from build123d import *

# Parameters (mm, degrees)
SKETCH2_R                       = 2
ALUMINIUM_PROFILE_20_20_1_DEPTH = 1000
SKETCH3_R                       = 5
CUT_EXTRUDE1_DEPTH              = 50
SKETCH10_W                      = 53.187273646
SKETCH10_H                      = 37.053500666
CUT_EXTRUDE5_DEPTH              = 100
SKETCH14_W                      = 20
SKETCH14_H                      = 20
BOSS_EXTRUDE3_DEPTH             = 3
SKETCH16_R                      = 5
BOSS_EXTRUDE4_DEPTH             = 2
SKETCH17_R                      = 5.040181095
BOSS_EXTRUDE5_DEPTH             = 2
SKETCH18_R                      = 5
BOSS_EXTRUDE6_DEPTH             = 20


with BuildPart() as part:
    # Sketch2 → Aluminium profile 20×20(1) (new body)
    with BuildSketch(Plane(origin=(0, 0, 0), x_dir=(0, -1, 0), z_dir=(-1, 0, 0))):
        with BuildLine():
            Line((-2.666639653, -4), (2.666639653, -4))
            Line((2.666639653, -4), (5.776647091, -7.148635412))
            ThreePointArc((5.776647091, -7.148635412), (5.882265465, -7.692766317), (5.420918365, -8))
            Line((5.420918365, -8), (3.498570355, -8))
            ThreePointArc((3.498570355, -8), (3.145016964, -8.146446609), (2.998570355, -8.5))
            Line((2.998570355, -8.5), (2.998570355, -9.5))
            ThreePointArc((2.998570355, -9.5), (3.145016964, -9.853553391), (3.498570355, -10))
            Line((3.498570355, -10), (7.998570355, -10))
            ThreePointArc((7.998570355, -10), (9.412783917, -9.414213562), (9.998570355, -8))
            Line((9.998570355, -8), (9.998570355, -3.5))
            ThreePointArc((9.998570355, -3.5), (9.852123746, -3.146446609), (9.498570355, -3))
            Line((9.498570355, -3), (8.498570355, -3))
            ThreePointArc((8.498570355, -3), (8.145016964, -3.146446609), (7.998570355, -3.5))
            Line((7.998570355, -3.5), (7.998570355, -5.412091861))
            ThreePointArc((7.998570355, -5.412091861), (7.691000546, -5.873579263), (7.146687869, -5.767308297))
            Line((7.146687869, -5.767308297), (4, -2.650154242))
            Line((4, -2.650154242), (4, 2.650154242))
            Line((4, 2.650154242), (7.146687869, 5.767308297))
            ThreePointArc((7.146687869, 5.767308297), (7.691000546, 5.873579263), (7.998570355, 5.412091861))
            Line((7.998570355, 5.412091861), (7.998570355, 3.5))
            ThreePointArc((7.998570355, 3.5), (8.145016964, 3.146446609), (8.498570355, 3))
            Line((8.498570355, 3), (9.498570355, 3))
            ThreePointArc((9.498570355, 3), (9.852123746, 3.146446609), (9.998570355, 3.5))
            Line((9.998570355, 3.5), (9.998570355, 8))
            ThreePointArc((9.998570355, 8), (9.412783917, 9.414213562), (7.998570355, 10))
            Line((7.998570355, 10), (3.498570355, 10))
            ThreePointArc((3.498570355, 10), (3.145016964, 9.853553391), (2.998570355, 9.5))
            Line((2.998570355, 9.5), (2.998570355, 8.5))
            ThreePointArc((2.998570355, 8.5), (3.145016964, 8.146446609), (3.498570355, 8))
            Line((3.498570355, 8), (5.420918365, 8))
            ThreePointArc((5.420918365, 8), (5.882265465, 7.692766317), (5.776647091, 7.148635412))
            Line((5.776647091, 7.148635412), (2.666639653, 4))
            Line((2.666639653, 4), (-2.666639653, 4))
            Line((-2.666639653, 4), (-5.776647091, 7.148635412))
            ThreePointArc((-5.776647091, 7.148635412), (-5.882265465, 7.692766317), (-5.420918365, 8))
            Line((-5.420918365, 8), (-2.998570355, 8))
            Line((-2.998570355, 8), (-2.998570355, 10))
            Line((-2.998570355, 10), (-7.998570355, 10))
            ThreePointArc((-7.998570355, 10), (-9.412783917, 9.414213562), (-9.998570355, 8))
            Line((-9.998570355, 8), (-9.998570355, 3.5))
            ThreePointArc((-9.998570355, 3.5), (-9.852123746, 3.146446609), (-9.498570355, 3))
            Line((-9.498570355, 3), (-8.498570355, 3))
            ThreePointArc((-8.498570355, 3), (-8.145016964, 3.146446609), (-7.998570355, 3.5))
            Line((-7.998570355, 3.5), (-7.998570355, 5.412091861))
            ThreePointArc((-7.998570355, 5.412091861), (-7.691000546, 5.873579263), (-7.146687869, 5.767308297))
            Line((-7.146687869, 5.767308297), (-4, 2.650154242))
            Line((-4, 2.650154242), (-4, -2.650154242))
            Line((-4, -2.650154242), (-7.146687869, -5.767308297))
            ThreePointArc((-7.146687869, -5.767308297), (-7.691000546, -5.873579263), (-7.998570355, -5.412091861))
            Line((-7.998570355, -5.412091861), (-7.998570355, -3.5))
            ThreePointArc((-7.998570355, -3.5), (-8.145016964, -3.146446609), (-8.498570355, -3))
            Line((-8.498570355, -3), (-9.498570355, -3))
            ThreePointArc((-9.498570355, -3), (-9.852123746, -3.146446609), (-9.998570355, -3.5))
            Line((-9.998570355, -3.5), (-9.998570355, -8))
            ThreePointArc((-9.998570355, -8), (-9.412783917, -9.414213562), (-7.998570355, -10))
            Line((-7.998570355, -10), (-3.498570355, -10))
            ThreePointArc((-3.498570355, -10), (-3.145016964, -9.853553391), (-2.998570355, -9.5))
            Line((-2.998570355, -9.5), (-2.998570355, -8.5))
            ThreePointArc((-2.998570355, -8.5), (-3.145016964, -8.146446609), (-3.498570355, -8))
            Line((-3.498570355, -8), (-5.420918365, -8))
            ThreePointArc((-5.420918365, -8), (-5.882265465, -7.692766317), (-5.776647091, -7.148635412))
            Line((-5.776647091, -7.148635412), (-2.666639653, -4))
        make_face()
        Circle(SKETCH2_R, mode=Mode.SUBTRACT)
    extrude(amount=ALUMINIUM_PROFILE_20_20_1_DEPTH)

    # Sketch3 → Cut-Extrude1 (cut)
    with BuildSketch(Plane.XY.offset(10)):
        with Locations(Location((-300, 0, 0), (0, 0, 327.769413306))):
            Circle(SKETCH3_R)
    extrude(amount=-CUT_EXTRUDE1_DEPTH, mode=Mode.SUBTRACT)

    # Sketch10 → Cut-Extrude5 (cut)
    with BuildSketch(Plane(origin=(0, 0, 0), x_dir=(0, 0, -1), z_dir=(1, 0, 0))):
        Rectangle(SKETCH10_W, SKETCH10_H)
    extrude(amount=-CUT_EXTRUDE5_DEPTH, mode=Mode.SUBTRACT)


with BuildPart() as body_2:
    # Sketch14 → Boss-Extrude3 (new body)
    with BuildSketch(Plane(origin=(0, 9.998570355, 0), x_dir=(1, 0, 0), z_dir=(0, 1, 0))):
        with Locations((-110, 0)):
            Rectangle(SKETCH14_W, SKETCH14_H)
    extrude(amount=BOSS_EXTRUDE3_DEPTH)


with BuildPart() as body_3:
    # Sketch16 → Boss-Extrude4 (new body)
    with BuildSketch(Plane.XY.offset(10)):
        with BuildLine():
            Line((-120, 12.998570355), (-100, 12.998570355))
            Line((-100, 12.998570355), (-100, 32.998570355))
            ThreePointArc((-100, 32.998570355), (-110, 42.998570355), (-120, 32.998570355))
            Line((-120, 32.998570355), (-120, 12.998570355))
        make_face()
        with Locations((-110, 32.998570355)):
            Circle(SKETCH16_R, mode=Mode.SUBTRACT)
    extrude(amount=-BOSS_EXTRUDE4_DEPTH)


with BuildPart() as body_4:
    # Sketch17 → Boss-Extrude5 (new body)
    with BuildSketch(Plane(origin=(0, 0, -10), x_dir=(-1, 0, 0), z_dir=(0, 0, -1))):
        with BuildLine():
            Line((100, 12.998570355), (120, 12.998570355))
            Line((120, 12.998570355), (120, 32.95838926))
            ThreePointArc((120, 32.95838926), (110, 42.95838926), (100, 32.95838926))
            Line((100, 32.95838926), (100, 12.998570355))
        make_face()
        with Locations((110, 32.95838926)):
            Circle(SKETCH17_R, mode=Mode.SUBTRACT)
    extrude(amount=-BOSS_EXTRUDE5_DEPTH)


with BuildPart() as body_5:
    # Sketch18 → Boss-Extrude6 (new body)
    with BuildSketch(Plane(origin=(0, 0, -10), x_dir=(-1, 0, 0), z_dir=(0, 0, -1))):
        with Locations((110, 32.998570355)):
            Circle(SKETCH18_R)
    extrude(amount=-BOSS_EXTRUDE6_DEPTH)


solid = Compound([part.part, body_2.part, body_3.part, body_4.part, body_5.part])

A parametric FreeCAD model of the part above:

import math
import FreeCAD as App
import Part
import Sketcher

V = App.Vector


def add_polygon(sketch, points):
    """Adds a closed chain of lines whose ends are joined by coincident constraints."""
    first, n = sketch.GeometryCount, len(points)
    for a, b in zip(points, points[1:] + points[:1]):
        sketch.addGeometry(Part.LineSegment(App.Vector(*a, 0), App.Vector(*b, 0)), False)
    for i in range(n):
        sketch.addConstraint(Sketcher.Constraint("Coincident", first + i, 2, first + (i + 1) % n, 1))

doc = App.newDocument("Part")
body = doc.addObject("PartDesign::Body", "Body")

# Sketch on YZ plane
sketch1 = doc.addObject("Sketcher::SketchObject", "Sketch")
body.addObject(sketch1)
sketch1.AttachmentSupport = (doc.YZ_Plane, [""])
sketch1.MapMode = "FlatFace"
sketch1.addGeometry([
    Part.LineSegment(V(2.66664, -4, 0), V(-2.66664, -4, 0)),  # 0
    Part.LineSegment(V(-2.66664, -4, 0), V(-5.776647, -7.148635, 0)),  # 1
    Part.ArcOfCircle(Part.Circle(V(-5.420918, -7.5, 0), V(0, 0, 1), 0.5), math.radians(135.353622), math.radians(270)),  # 2
    Part.LineSegment(V(-5.420918, -8, 0), V(-3.49857, -8, 0)),  # 3
    Part.ArcOfCircle(Part.Circle(V(-3.49857, -8.5, 0), V(0, 0, 1), 0.5), math.radians(0), math.radians(90)),  # 4
    Part.LineSegment(V(-2.99857, -8.5, 0), V(-2.99857, -9.5, 0)),  # 5
    Part.ArcOfCircle(Part.Circle(V(-3.49857, -9.5, 0), V(0, 0, 1), 0.5), math.radians(-90), math.radians(0)),  # 6
    Part.LineSegment(V(-3.49857, -10, 0), V(-7.99857, -10, 0)),  # 7
    Part.ArcOfCircle(Part.Circle(V(-7.99857, -8, 0), V(0, 0, 1), 2), math.radians(-180), math.radians(-90)),  # 8
    Part.LineSegment(V(-9.99857, -8, 0), V(-9.99857, -3.5, 0)),  # 9
    Part.ArcOfCircle(Part.Circle(V(-9.49857, -3.5, 0), V(0, 0, 1), 0.5), math.radians(90), math.radians(180)),  # 10
    Part.LineSegment(V(-9.49857, -3, 0), V(-8.49857, -3, 0)),  # 11
    Part.ArcOfCircle(Part.Circle(V(-8.49857, -3.5, 0), V(0, 0, 1), 0.5), math.radians(0), math.radians(90)),  # 12
    Part.LineSegment(V(-7.99857, -3.5, 0), V(-7.99857, -5.412092, 0)),  # 13
    Part.ArcOfCircle(Part.Circle(V(-7.49857, -5.412092, 0), V(0, 0, 1), 0.5), math.radians(180), math.radians(314.729854)),  # 14
    Part.LineSegment(V(-7.146688, -5.767308, 0), V(-4, -2.650154, 0)),  # 15
    Part.LineSegment(V(-4, -2.650154, 0), V(-4, 2.650154, 0)),  # 16
    Part.LineSegment(V(-4, 2.650154, 0), V(-7.146688, 5.767308, 0)),  # 17
    Part.ArcOfCircle(Part.Circle(V(-7.49857, 5.412092, 0), V(0, 0, 1), 0.5), math.radians(45.270146), math.radians(180)),  # 18
    Part.LineSegment(V(-7.99857, 5.412092, 0), V(-7.99857, 3.5, 0)),  # 19
    Part.ArcOfCircle(Part.Circle(V(-8.49857, 3.5, 0), V(0, 0, 1), 0.5), math.radians(-90), math.radians(0)),  # 20
    Part.LineSegment(V(-8.49857, 3, 0), V(-9.49857, 3, 0)),  # 21
    Part.ArcOfCircle(Part.Circle(V(-9.49857, 3.5, 0), V(0, 0, 1), 0.5), math.radians(180), math.radians(270)),  # 22
    Part.LineSegment(V(-9.99857, 3.5, 0), V(-9.99857, 8, 0)),  # 23
    Part.ArcOfCircle(Part.Circle(V(-7.99857, 8, 0), V(0, 0, 1), 2), math.radians(90), math.radians(180)),  # 24
    Part.LineSegment(V(-7.99857, 10, 0), V(-3.49857, 10, 0)),  # 25
    Part.ArcOfCircle(Part.Circle(V(-3.49857, 9.5, 0), V(0, 0, 1), 0.5), math.radians(0), math.radians(90)),  # 26
    Part.LineSegment(V(-2.99857, 9.5, 0), V(-2.99857, 8.5, 0)),  # 27
    Part.ArcOfCircle(Part.Circle(V(-3.49857, 8.5, 0), V(0, 0, 1), 0.5), math.radians(-90), math.radians(0)),  # 28
    Part.LineSegment(V(-3.49857, 8, 0), V(-5.420918, 8, 0)),  # 29
    Part.ArcOfCircle(Part.Circle(V(-5.420918, 7.5, 0), V(0, 0, 1), 0.5), math.radians(90), math.radians(224.646378)),  # 30
    Part.LineSegment(V(-5.776647, 7.148635, 0), V(-2.66664, 4, 0)),  # 31
    Part.LineSegment(V(-2.66664, 4, 0), V(2.66664, 4, 0)),  # 32
    Part.LineSegment(V(2.66664, 4, 0), V(5.776647, 7.148635, 0)),  # 33
    Part.ArcOfCircle(Part.Circle(V(5.420918, 7.5, 0), V(0, 0, 1), 0.5), math.radians(-44.646378), math.radians(90)),  # 34
    Part.LineSegment(V(5.420918, 8, 0), V(2.99857, 8, 0)),  # 35
    Part.LineSegment(V(2.99857, 8, 0), V(2.99857, 10, 0)),  # 36
    Part.LineSegment(V(2.99857, 10, 0), V(7.99857, 10, 0)),  # 37
    Part.ArcOfCircle(Part.Circle(V(7.99857, 8, 0), V(0, 0, 1), 2), math.radians(0), math.radians(90)),  # 38
    Part.LineSegment(V(9.99857, 8, 0), V(9.99857, 3.5, 0)),  # 39
    Part.ArcOfCircle(Part.Circle(V(9.49857, 3.5, 0), V(0, 0, 1), 0.5), math.radians(-90), math.radians(0)),  # 40
    Part.LineSegment(V(9.49857, 3, 0), V(8.49857, 3, 0)),  # 41
    Part.ArcOfCircle(Part.Circle(V(8.49857, 3.5, 0), V(0, 0, 1), 0.5), math.radians(180), math.radians(270)),  # 42
    Part.LineSegment(V(7.99857, 3.5, 0), V(7.99857, 5.412092, 0)),  # 43
    Part.ArcOfCircle(Part.Circle(V(7.49857, 5.412092, 0), V(0, 0, 1), 0.5), math.radians(0), math.radians(134.729854)),  # 44
    Part.LineSegment(V(7.146688, 5.767308, 0), V(4, 2.650154, 0)),  # 45
    Part.LineSegment(V(4, 2.650154, 0), V(4, -2.650154, 0)),  # 46
    Part.LineSegment(V(4, -2.650154, 0), V(7.146688, -5.767308, 0)),  # 47
    Part.ArcOfCircle(Part.Circle(V(7.49857, -5.412092, 0), V(0, 0, 1), 0.5), math.radians(-134.729854), math.radians(0)),  # 48
    Part.LineSegment(V(7.99857, -5.412092, 0), V(7.99857, -3.5, 0)),  # 49
    Part.ArcOfCircle(Part.Circle(V(8.49857, -3.5, 0), V(0, 0, 1), 0.5), math.radians(90), math.radians(180)),  # 50
    Part.LineSegment(V(8.49857, -3, 0), V(9.49857, -3, 0)),  # 51
    Part.ArcOfCircle(Part.Circle(V(9.49857, -3.5, 0), V(0, 0, 1), 0.5), math.radians(0), math.radians(90)),  # 52
    Part.LineSegment(V(9.99857, -3.5, 0), V(9.99857, -8, 0)),  # 53
    Part.ArcOfCircle(Part.Circle(V(7.99857, -8, 0), V(0, 0, 1), 2), math.radians(-90), math.radians(0)),  # 54
    Part.LineSegment(V(7.99857, -10, 0), V(3.49857, -10, 0)),  # 55
    Part.ArcOfCircle(Part.Circle(V(3.49857, -9.5, 0), V(0, 0, 1), 0.5), math.radians(180), math.radians(270)),  # 56
    Part.LineSegment(V(2.99857, -9.5, 0), V(2.99857, -8.5, 0)),  # 57
    Part.ArcOfCircle(Part.Circle(V(3.49857, -8.5, 0), V(0, 0, 1), 0.5), math.radians(90), math.radians(180)),  # 58
    Part.LineSegment(V(3.49857, -8, 0), V(5.420918, -8, 0)),  # 59
    Part.ArcOfCircle(Part.Circle(V(5.420918, -7.5, 0), V(0, 0, 1), 0.5), math.radians(-90), math.radians(44.646378)),  # 60
    Part.LineSegment(V(5.776647, -7.148635, 0), V(2.66664, -4, 0)),  # 61
    Part.Circle(V(0, 0, 0), V(0, 0, 1), 2),  # 62
], False)
sketch1.addConstraint([
    Sketcher.Constraint("Coincident", 0, 2, 1, 1),
    Sketcher.Constraint("Tangent", 1, 2, 2, 1),
    Sketcher.Constraint("Tangent", 2, 2, 3, 1),
    Sketcher.Constraint("Tangent", 3, 2, 4, 2),
    Sketcher.Constraint("Tangent", 4, 1, 5, 1),
    Sketcher.Constraint("Tangent", 5, 2, 6, 2),
    Sketcher.Constraint("Tangent", 6, 1, 7, 1),
    Sketcher.Constraint("Tangent", 7, 2, 8, 2),
    Sketcher.Constraint("Tangent", 8, 1, 9, 1),
    Sketcher.Constraint("Tangent", 9, 2, 10, 2),
    Sketcher.Constraint("Tangent", 10, 1, 11, 1),
    Sketcher.Constraint("Tangent", 11, 2, 12, 2),
    Sketcher.Constraint("Tangent", 12, 1, 13, 1),
    Sketcher.Constraint("Tangent", 13, 2, 14, 1),
    Sketcher.Constraint("Tangent", 14, 2, 15, 1),
    Sketcher.Constraint("Coincident", 15, 2, 16, 1),
    Sketcher.Constraint("Coincident", 16, 2, 17, 1),
    Sketcher.Constraint("Tangent", 17, 2, 18, 1),
    Sketcher.Constraint("Tangent", 18, 2, 19, 1),
    Sketcher.Constraint("Tangent", 19, 2, 20, 2),
    Sketcher.Constraint("Tangent", 20, 1, 21, 1),
    Sketcher.Constraint("Tangent", 21, 2, 22, 2),
    Sketcher.Constraint("Tangent", 22, 1, 23, 1),
    Sketcher.Constraint("Tangent", 23, 2, 24, 2),
    Sketcher.Constraint("Tangent", 24, 1, 25, 1),
    Sketcher.Constraint("Tangent", 25, 2, 26, 2),
    Sketcher.Constraint("Tangent", 26, 1, 27, 1),
    Sketcher.Constraint("Tangent", 27, 2, 28, 2),
    Sketcher.Constraint("Tangent", 28, 1, 29, 1),
    Sketcher.Constraint("Tangent", 29, 2, 30, 1),
    Sketcher.Constraint("Tangent", 30, 2, 31, 1),
    Sketcher.Constraint("Coincident", 31, 2, 32, 1),
    Sketcher.Constraint("Coincident", 32, 2, 33, 1),
    Sketcher.Constraint("Tangent", 33, 2, 34, 1),
    Sketcher.Constraint("Tangent", 34, 2, 35, 1),
    Sketcher.Constraint("Coincident", 35, 2, 36, 1),
    Sketcher.Constraint("Coincident", 36, 2, 37, 1),
    Sketcher.Constraint("Tangent", 37, 2, 38, 2),
    Sketcher.Constraint("Tangent", 38, 1, 39, 1),
    Sketcher.Constraint("Tangent", 39, 2, 40, 2),
    Sketcher.Constraint("Tangent", 40, 1, 41, 1),
    Sketcher.Constraint("Tangent", 41, 2, 42, 2),
    Sketcher.Constraint("Tangent", 42, 1, 43, 1),
    Sketcher.Constraint("Tangent", 43, 2, 44, 1),
    Sketcher.Constraint("Tangent", 44, 2, 45, 1),
    Sketcher.Constraint("Coincident", 45, 2, 46, 1),
    Sketcher.Constraint("Coincident", 46, 2, 47, 1),
    Sketcher.Constraint("Tangent", 47, 2, 48, 1),
    Sketcher.Constraint("Tangent", 48, 2, 49, 1),
    Sketcher.Constraint("Tangent", 49, 2, 50, 2),
    Sketcher.Constraint("Tangent", 50, 1, 51, 1),
    Sketcher.Constraint("Tangent", 51, 2, 52, 2),
    Sketcher.Constraint("Tangent", 52, 1, 53, 1),
    Sketcher.Constraint("Tangent", 53, 2, 54, 2),
    Sketcher.Constraint("Tangent", 54, 1, 55, 1),
    Sketcher.Constraint("Tangent", 55, 2, 56, 2),
    Sketcher.Constraint("Tangent", 56, 1, 57, 1),
    Sketcher.Constraint("Tangent", 57, 2, 58, 2),
    Sketcher.Constraint("Tangent", 58, 1, 59, 1),
    Sketcher.Constraint("Tangent", 59, 2, 60, 1),
    Sketcher.Constraint("Tangent", 60, 2, 61, 1),
    Sketcher.Constraint("Coincident", 61, 2, 0, 1),
    Sketcher.Constraint("Horizontal", 0),
    Sketcher.Constraint("Horizontal", 3),
    Sketcher.Constraint("Vertical", 5),
    Sketcher.Constraint("Horizontal", 7),
    Sketcher.Constraint("Vertical", 9),
    Sketcher.Constraint("Horizontal", 11),
    Sketcher.Constraint("Vertical", 13),
    Sketcher.Constraint("Vertical", 16),
    Sketcher.Constraint("Vertical", 19),
    Sketcher.Constraint("Horizontal", 21),
    Sketcher.Constraint("Vertical", 23),
    Sketcher.Constraint("Horizontal", 25),
    Sketcher.Constraint("Vertical", 27),
    Sketcher.Constraint("Horizontal", 29),
    Sketcher.Constraint("Horizontal", 32),
    Sketcher.Constraint("Horizontal", 35),
    Sketcher.Constraint("Vertical", 36),
    Sketcher.Constraint("Horizontal", 37),
    Sketcher.Constraint("Vertical", 39),
    Sketcher.Constraint("Horizontal", 41),
    Sketcher.Constraint("Vertical", 43),
    Sketcher.Constraint("Vertical", 46),
    Sketcher.Constraint("Vertical", 49),
    Sketcher.Constraint("Horizontal", 51),
    Sketcher.Constraint("Vertical", 53),
    Sketcher.Constraint("Horizontal", 55),
    Sketcher.Constraint("Vertical", 57),
    Sketcher.Constraint("Horizontal", 59),
    Sketcher.Constraint("Coincident", 62, 3, -1, 1),
    Sketcher.Constraint("Equal", 2, 4),
    Sketcher.Constraint("Equal", 4, 6),
    Sketcher.Constraint("Equal", 6, 10),
    Sketcher.Constraint("Equal", 10, 12),
    Sketcher.Constraint("Equal", 12, 14),
    Sketcher.Constraint("Equal", 14, 18),
    Sketcher.Constraint("Equal", 18, 20),
    Sketcher.Constraint("Equal", 20, 22),
    Sketcher.Constraint("Equal", 8, 24),
    Sketcher.Constraint("Equal", 22, 26),
    Sketcher.Constraint("Equal", 26, 28),
    Sketcher.Constraint("Equal", 28, 30),
    Sketcher.Constraint("Equal", 30, 34),
    Sketcher.Constraint("Equal", 24, 38),
    Sketcher.Constraint("Equal", 34, 40),
    Sketcher.Constraint("Equal", 40, 42),
    Sketcher.Constraint("Equal", 42, 44),
    Sketcher.Constraint("Equal", 44, 48),
    Sketcher.Constraint("Equal", 48, 50),
    Sketcher.Constraint("Equal", 50, 52),
    Sketcher.Constraint("Equal", 38, 54),
    Sketcher.Constraint("Equal", 52, 56),
    Sketcher.Constraint("Equal", 56, 58),
    Sketcher.Constraint("Equal", 58, 60),
    Sketcher.Constraint("Equal", 54, 62),
    Sketcher.Constraint("Symmetric", 2, 3, 34, 3, -1, 1),
    Sketcher.Constraint("Symmetric", 8, 3, 38, 3, -1, 1),
    Sketcher.Constraint("Symmetric", 12, 3, 42, 3, -1, 1),
    Sketcher.Constraint("Symmetric", 18, 3, 48, 3, -1, 1),
    Sketcher.Constraint("Symmetric", 22, 3, 52, 3, -1, 1),
    Sketcher.Constraint("Symmetric", 26, 3, 56, 3, -1, 1),
    Sketcher.Constraint("Symmetric", 30, 3, 60, 3, -1, 1),
    Sketcher.Constraint("Symmetric", 0, 2, 32, 2, -1, 1),
    Sketcher.Constraint("Symmetric", 14, 2, 44, 2, -1, 1),
    Sketcher.Constraint("Symmetric", 16, 2, 46, 2, -1, 1),
    Sketcher.Constraint("Symmetric", 30, 3, 34, 3, -2),
    Sketcher.Constraint("Symmetric", 24, 3, 38, 3, -2),
    Sketcher.Constraint("Symmetric", 20, 3, 42, 3, -2),
    Sketcher.Constraint("Symmetric", 17, 2, 44, 2, -2),
    Sketcher.Constraint("Parallel", 31, 61),
    Sketcher.Constraint("Horizontal", 54, 3, 2, 2),
    Sketcher.Constraint("Horizontal", 30, 2, 33, 2),
    Sketcher.Constraint("Vertical", 6, 3, 26, 3),
    Sketcher.Constraint("Vertical", 7, 2, 12, 1),
    Sketcher.Constraint("Vertical", 36, 2, 56, 1),
    Sketcher.Constraint("Equal", 55, 9),
    Sketcher.Constraint("Diameter", 62, 4.0),
    Sketcher.Constraint("Radius", 2, 0.5),
    Sketcher.Constraint("DistanceX", 37, 1, 37, 2, 5.0),
    Sketcher.Constraint("DistanceY", 8, 3, -1, 1, 8.0),
    Sketcher.Constraint("DistanceY", 0, 2, -1, 1, 4.0),
    Sketcher.Constraint("DistanceX", 15, 2, -1, 1, 4.0),
    Sketcher.Constraint("DistanceX", 0, 2, 0, 1, 5.333279),
    Sketcher.Constraint("DistanceX", 3, 1, 3, 2, 1.922348),
    Sketcher.Constraint("DistanceY", 13, 2, 13, 1, 1.912092),
    Sketcher.Constraint("DistanceY", 16, 1, 16, 2, 5.300308),
    Sketcher.Constraint("DistanceX", 2, 3, -1, 1, 5.420918),
])
pad1 = doc.addObject("PartDesign::Pad", "Pad")
body.addObject(pad1)
pad1.Profile = sketch1
pad1.Length = 1000
pad1.Reversed = True

# Sketch on XY plane
sketch2 = doc.addObject("Sketcher::SketchObject", "Sketch001")
body.addObject(sketch2)
sketch2.AttachmentSupport = (doc.XY_Plane, [""])
sketch2.MapMode = "FlatFace"
sketch2.AttachmentOffset = App.Placement(V(0, 0, 10), App.Rotation())
sketch2.addGeometry(Part.Circle(V(-300, 0, 0), V(0, 0, 1), 5), False)
sketch2.addConstraint([
    Sketcher.Constraint("PointOnObject", 0, 3, -1),
    Sketcher.Constraint("Diameter", 0, 10.0),
    Sketcher.Constraint("DistanceX", 0, 3, -1, 1, 300.0),
])
pocket1 = doc.addObject("PartDesign::Pocket", "Pocket")
body.addObject(pocket1)
pocket1.Profile = sketch2
pocket1.Length = 50

# Sketch on YZ plane
sketch3 = doc.addObject("Sketcher::SketchObject", "Sketch002")
body.addObject(sketch3)
sketch3.AttachmentSupport = (doc.YZ_Plane, [""])
sketch3.MapMode = "FlatFace"
add_polygon(sketch3, [(18.52675, 26.593637), (-18.52675, 26.593637), (-18.52675, -26.593637), (18.52675, -26.593637)])  # lines 0-3
sketch3.addConstraint([
    Sketcher.Constraint("Horizontal", 0),
    Sketcher.Constraint("Vertical", 1),
    Sketcher.Constraint("Horizontal", 2),
    Sketcher.Constraint("Vertical", 3),
    Sketcher.Constraint("Symmetric", 0, 2, 2, 2, -1, 1),
    Sketcher.Constraint("DistanceX", 0, 2, 0, 1, 37.053501),
    Sketcher.Constraint("DistanceY", 1, 2, 1, 1, 53.187274),
])
pocket2 = doc.addObject("PartDesign::Pocket", "Pocket001")
body.addObject(pocket2)
pocket2.Profile = sketch3
pocket2.Length = 100
body2 = doc.addObject("PartDesign::Body", "Body001")

# Sketch on XZ plane
sketch4 = doc.addObject("Sketcher::SketchObject", "Sketch003")
body2.addObject(sketch4)
sketch4.AttachmentSupport = (doc.getObject("XZ_Plane001"), [""])
sketch4.MapMode = "FlatFace"
sketch4.AttachmentOffset = App.Placement(V(0, 0, -9.99857), App.Rotation())
add_polygon(sketch4, [(-120, -10), (-120, 10), (-100, 10), (-100, -10)])  # lines 0-3
sketch4.addConstraint([
    Sketcher.Constraint("Vertical", 0),
    Sketcher.Constraint("Horizontal", 1),
    Sketcher.Constraint("Vertical", 2),
    Sketcher.Constraint("Horizontal", 3),
    Sketcher.Constraint("Equal", 3, 0),
    Sketcher.Constraint("DistanceX", 1, 1, 1, 2, 20.0),
    Sketcher.Constraint("DistanceX", 0, 2, -1, 1, 120.0),
    Sketcher.Constraint("DistanceY", -1, 1, 0, 2, 10.0),
])
pad2 = doc.addObject("PartDesign::Pad", "Pad001")
body2.addObject(pad2)
pad2.Profile = sketch4
pad2.Length = 3
pad2.Reversed = True
body3 = doc.addObject("PartDesign::Body", "Body002")

# Sketch on XY plane
sketch5 = doc.addObject("Sketcher::SketchObject", "Sketch004")
body3.addObject(sketch5)
sketch5.AttachmentSupport = (doc.getObject("XY_Plane002"), [""])
sketch5.MapMode = "FlatFace"
sketch5.AttachmentOffset = App.Placement(V(0, 0, 10), App.Rotation())
sketch5.addGeometry([
    Part.LineSegment(V(-120, 12.99857, 0), V(-100, 12.99857, 0)),  # 0
    Part.LineSegment(V(-100, 12.99857, 0), V(-100, 32.99857, 0)),  # 1
    Part.ArcOfCircle(Part.Circle(V(-110, 32.99857, 0), V(0, 0, 1), 10), math.radians(0), math.radians(180)),  # 2
    Part.LineSegment(V(-120, 32.99857, 0), V(-120, 12.99857, 0)),  # 3
    Part.Circle(V(-110, 32.99857, 0), V(0, 0, 1), 5),  # 4
], False)
sketch5.addConstraint([
    Sketcher.Constraint("Coincident", 0, 2, 1, 1),
    Sketcher.Constraint("Tangent", 1, 2, 2, 1),
    Sketcher.Constraint("Tangent", 2, 2, 3, 1),
    Sketcher.Constraint("Coincident", 3, 2, 0, 1),
    Sketcher.Constraint("Horizontal", 0),
    Sketcher.Constraint("Vertical", 1),
    Sketcher.Constraint("Vertical", 3),
    Sketcher.Constraint("Coincident", 4, 3, 2, 3),
    Sketcher.Constraint("Equal", 0, 1),
    Sketcher.Constraint("Diameter", 4, 10.0),
    Sketcher.Constraint("Radius", 2, 10.0),
    Sketcher.Constraint("DistanceX", 2, 3, -1, 1, 110.0),
    Sketcher.Constraint("DistanceY", -1, 1, 2, 3, 32.99857),
])
pad3 = doc.addObject("PartDesign::Pad", "Pad002")
body3.addObject(pad3)
pad3.Profile = sketch5
pad3.Length = 2
pad3.Reversed = True
body4 = doc.addObject("PartDesign::Body", "Body003")

# Sketch on XY plane
sketch6 = doc.addObject("Sketcher::SketchObject", "Sketch005")
body4.addObject(sketch6)
sketch6.AttachmentSupport = (doc.getObject("XY_Plane003"), [""])
sketch6.MapMode = "FlatFace"
sketch6.AttachmentOffset = App.Placement(V(0, 0, -10), App.Rotation())
sketch6.addGeometry([
    Part.LineSegment(V(-100, 12.99857, 0), V(-120, 12.99857, 0)),  # 0
    Part.LineSegment(V(-120, 12.99857, 0), V(-120, 32.958389, 0)),  # 1
    Part.ArcOfCircle(Part.Circle(V(-110, 32.958389, 0), V(0, 0, 1), 10), math.radians(0), math.radians(180)),  # 2
    Part.LineSegment(V(-100, 32.958389, 0), V(-100, 12.99857, 0)),  # 3
    Part.Circle(V(-110, 32.958389, 0), V(0, 0, 1), 5.040181),  # 4
], False)
sketch6.addConstraint([
    Sketcher.Constraint("Coincident", 0, 2, 1, 1),
    Sketcher.Constraint("Tangent", 1, 2, 2, 2),
    Sketcher.Constraint("Tangent", 2, 1, 3, 1),
    Sketcher.Constraint("Coincident", 3, 2, 0, 1),
    Sketcher.Constraint("Horizontal", 0),
    Sketcher.Constraint("Vertical", 1),
    Sketcher.Constraint("Vertical", 3),
    Sketcher.Constraint("Coincident", 4, 3, 2, 3),
    Sketcher.Constraint("Radius", 2, 10.0),
    Sketcher.Constraint("DistanceX", 2, 3, -1, 1, 110.0),
    Sketcher.Constraint("Diameter", 4, 10.080362),
    Sketcher.Constraint("DistanceY", 1, 1, 1, 2, 19.959819),
    Sketcher.Constraint("DistanceY", -1, 1, 2, 3, 32.958389),
])
pad4 = doc.addObject("PartDesign::Pad", "Pad003")
body4.addObject(pad4)
pad4.Profile = sketch6
pad4.Length = 2
body5 = doc.addObject("PartDesign::Body", "Body004")

# Sketch on XY plane
sketch7 = doc.addObject("Sketcher::SketchObject", "Sketch006")
body5.addObject(sketch7)
sketch7.AttachmentSupport = (doc.getObject("XY_Plane004"), [""])
sketch7.MapMode = "FlatFace"
sketch7.AttachmentOffset = App.Placement(V(0, 0, -10), App.Rotation())
sketch7.addGeometry(Part.Circle(V(-110, 32.99857, 0), V(0, 0, 1), 5), False)
sketch7.addConstraint([
    Sketcher.Constraint("Diameter", 0, 10.0),
    Sketcher.Constraint("DistanceX", 0, 3, -1, 1, 110.0),
    Sketcher.Constraint("DistanceY", -1, 1, 0, 3, 32.99857),
])
pad5 = doc.addObject("PartDesign::Pad", "Pad004")
body5.addObject(pad5)
pad5.Profile = sketch7
pad5.Length = 20

doc.recompute()
